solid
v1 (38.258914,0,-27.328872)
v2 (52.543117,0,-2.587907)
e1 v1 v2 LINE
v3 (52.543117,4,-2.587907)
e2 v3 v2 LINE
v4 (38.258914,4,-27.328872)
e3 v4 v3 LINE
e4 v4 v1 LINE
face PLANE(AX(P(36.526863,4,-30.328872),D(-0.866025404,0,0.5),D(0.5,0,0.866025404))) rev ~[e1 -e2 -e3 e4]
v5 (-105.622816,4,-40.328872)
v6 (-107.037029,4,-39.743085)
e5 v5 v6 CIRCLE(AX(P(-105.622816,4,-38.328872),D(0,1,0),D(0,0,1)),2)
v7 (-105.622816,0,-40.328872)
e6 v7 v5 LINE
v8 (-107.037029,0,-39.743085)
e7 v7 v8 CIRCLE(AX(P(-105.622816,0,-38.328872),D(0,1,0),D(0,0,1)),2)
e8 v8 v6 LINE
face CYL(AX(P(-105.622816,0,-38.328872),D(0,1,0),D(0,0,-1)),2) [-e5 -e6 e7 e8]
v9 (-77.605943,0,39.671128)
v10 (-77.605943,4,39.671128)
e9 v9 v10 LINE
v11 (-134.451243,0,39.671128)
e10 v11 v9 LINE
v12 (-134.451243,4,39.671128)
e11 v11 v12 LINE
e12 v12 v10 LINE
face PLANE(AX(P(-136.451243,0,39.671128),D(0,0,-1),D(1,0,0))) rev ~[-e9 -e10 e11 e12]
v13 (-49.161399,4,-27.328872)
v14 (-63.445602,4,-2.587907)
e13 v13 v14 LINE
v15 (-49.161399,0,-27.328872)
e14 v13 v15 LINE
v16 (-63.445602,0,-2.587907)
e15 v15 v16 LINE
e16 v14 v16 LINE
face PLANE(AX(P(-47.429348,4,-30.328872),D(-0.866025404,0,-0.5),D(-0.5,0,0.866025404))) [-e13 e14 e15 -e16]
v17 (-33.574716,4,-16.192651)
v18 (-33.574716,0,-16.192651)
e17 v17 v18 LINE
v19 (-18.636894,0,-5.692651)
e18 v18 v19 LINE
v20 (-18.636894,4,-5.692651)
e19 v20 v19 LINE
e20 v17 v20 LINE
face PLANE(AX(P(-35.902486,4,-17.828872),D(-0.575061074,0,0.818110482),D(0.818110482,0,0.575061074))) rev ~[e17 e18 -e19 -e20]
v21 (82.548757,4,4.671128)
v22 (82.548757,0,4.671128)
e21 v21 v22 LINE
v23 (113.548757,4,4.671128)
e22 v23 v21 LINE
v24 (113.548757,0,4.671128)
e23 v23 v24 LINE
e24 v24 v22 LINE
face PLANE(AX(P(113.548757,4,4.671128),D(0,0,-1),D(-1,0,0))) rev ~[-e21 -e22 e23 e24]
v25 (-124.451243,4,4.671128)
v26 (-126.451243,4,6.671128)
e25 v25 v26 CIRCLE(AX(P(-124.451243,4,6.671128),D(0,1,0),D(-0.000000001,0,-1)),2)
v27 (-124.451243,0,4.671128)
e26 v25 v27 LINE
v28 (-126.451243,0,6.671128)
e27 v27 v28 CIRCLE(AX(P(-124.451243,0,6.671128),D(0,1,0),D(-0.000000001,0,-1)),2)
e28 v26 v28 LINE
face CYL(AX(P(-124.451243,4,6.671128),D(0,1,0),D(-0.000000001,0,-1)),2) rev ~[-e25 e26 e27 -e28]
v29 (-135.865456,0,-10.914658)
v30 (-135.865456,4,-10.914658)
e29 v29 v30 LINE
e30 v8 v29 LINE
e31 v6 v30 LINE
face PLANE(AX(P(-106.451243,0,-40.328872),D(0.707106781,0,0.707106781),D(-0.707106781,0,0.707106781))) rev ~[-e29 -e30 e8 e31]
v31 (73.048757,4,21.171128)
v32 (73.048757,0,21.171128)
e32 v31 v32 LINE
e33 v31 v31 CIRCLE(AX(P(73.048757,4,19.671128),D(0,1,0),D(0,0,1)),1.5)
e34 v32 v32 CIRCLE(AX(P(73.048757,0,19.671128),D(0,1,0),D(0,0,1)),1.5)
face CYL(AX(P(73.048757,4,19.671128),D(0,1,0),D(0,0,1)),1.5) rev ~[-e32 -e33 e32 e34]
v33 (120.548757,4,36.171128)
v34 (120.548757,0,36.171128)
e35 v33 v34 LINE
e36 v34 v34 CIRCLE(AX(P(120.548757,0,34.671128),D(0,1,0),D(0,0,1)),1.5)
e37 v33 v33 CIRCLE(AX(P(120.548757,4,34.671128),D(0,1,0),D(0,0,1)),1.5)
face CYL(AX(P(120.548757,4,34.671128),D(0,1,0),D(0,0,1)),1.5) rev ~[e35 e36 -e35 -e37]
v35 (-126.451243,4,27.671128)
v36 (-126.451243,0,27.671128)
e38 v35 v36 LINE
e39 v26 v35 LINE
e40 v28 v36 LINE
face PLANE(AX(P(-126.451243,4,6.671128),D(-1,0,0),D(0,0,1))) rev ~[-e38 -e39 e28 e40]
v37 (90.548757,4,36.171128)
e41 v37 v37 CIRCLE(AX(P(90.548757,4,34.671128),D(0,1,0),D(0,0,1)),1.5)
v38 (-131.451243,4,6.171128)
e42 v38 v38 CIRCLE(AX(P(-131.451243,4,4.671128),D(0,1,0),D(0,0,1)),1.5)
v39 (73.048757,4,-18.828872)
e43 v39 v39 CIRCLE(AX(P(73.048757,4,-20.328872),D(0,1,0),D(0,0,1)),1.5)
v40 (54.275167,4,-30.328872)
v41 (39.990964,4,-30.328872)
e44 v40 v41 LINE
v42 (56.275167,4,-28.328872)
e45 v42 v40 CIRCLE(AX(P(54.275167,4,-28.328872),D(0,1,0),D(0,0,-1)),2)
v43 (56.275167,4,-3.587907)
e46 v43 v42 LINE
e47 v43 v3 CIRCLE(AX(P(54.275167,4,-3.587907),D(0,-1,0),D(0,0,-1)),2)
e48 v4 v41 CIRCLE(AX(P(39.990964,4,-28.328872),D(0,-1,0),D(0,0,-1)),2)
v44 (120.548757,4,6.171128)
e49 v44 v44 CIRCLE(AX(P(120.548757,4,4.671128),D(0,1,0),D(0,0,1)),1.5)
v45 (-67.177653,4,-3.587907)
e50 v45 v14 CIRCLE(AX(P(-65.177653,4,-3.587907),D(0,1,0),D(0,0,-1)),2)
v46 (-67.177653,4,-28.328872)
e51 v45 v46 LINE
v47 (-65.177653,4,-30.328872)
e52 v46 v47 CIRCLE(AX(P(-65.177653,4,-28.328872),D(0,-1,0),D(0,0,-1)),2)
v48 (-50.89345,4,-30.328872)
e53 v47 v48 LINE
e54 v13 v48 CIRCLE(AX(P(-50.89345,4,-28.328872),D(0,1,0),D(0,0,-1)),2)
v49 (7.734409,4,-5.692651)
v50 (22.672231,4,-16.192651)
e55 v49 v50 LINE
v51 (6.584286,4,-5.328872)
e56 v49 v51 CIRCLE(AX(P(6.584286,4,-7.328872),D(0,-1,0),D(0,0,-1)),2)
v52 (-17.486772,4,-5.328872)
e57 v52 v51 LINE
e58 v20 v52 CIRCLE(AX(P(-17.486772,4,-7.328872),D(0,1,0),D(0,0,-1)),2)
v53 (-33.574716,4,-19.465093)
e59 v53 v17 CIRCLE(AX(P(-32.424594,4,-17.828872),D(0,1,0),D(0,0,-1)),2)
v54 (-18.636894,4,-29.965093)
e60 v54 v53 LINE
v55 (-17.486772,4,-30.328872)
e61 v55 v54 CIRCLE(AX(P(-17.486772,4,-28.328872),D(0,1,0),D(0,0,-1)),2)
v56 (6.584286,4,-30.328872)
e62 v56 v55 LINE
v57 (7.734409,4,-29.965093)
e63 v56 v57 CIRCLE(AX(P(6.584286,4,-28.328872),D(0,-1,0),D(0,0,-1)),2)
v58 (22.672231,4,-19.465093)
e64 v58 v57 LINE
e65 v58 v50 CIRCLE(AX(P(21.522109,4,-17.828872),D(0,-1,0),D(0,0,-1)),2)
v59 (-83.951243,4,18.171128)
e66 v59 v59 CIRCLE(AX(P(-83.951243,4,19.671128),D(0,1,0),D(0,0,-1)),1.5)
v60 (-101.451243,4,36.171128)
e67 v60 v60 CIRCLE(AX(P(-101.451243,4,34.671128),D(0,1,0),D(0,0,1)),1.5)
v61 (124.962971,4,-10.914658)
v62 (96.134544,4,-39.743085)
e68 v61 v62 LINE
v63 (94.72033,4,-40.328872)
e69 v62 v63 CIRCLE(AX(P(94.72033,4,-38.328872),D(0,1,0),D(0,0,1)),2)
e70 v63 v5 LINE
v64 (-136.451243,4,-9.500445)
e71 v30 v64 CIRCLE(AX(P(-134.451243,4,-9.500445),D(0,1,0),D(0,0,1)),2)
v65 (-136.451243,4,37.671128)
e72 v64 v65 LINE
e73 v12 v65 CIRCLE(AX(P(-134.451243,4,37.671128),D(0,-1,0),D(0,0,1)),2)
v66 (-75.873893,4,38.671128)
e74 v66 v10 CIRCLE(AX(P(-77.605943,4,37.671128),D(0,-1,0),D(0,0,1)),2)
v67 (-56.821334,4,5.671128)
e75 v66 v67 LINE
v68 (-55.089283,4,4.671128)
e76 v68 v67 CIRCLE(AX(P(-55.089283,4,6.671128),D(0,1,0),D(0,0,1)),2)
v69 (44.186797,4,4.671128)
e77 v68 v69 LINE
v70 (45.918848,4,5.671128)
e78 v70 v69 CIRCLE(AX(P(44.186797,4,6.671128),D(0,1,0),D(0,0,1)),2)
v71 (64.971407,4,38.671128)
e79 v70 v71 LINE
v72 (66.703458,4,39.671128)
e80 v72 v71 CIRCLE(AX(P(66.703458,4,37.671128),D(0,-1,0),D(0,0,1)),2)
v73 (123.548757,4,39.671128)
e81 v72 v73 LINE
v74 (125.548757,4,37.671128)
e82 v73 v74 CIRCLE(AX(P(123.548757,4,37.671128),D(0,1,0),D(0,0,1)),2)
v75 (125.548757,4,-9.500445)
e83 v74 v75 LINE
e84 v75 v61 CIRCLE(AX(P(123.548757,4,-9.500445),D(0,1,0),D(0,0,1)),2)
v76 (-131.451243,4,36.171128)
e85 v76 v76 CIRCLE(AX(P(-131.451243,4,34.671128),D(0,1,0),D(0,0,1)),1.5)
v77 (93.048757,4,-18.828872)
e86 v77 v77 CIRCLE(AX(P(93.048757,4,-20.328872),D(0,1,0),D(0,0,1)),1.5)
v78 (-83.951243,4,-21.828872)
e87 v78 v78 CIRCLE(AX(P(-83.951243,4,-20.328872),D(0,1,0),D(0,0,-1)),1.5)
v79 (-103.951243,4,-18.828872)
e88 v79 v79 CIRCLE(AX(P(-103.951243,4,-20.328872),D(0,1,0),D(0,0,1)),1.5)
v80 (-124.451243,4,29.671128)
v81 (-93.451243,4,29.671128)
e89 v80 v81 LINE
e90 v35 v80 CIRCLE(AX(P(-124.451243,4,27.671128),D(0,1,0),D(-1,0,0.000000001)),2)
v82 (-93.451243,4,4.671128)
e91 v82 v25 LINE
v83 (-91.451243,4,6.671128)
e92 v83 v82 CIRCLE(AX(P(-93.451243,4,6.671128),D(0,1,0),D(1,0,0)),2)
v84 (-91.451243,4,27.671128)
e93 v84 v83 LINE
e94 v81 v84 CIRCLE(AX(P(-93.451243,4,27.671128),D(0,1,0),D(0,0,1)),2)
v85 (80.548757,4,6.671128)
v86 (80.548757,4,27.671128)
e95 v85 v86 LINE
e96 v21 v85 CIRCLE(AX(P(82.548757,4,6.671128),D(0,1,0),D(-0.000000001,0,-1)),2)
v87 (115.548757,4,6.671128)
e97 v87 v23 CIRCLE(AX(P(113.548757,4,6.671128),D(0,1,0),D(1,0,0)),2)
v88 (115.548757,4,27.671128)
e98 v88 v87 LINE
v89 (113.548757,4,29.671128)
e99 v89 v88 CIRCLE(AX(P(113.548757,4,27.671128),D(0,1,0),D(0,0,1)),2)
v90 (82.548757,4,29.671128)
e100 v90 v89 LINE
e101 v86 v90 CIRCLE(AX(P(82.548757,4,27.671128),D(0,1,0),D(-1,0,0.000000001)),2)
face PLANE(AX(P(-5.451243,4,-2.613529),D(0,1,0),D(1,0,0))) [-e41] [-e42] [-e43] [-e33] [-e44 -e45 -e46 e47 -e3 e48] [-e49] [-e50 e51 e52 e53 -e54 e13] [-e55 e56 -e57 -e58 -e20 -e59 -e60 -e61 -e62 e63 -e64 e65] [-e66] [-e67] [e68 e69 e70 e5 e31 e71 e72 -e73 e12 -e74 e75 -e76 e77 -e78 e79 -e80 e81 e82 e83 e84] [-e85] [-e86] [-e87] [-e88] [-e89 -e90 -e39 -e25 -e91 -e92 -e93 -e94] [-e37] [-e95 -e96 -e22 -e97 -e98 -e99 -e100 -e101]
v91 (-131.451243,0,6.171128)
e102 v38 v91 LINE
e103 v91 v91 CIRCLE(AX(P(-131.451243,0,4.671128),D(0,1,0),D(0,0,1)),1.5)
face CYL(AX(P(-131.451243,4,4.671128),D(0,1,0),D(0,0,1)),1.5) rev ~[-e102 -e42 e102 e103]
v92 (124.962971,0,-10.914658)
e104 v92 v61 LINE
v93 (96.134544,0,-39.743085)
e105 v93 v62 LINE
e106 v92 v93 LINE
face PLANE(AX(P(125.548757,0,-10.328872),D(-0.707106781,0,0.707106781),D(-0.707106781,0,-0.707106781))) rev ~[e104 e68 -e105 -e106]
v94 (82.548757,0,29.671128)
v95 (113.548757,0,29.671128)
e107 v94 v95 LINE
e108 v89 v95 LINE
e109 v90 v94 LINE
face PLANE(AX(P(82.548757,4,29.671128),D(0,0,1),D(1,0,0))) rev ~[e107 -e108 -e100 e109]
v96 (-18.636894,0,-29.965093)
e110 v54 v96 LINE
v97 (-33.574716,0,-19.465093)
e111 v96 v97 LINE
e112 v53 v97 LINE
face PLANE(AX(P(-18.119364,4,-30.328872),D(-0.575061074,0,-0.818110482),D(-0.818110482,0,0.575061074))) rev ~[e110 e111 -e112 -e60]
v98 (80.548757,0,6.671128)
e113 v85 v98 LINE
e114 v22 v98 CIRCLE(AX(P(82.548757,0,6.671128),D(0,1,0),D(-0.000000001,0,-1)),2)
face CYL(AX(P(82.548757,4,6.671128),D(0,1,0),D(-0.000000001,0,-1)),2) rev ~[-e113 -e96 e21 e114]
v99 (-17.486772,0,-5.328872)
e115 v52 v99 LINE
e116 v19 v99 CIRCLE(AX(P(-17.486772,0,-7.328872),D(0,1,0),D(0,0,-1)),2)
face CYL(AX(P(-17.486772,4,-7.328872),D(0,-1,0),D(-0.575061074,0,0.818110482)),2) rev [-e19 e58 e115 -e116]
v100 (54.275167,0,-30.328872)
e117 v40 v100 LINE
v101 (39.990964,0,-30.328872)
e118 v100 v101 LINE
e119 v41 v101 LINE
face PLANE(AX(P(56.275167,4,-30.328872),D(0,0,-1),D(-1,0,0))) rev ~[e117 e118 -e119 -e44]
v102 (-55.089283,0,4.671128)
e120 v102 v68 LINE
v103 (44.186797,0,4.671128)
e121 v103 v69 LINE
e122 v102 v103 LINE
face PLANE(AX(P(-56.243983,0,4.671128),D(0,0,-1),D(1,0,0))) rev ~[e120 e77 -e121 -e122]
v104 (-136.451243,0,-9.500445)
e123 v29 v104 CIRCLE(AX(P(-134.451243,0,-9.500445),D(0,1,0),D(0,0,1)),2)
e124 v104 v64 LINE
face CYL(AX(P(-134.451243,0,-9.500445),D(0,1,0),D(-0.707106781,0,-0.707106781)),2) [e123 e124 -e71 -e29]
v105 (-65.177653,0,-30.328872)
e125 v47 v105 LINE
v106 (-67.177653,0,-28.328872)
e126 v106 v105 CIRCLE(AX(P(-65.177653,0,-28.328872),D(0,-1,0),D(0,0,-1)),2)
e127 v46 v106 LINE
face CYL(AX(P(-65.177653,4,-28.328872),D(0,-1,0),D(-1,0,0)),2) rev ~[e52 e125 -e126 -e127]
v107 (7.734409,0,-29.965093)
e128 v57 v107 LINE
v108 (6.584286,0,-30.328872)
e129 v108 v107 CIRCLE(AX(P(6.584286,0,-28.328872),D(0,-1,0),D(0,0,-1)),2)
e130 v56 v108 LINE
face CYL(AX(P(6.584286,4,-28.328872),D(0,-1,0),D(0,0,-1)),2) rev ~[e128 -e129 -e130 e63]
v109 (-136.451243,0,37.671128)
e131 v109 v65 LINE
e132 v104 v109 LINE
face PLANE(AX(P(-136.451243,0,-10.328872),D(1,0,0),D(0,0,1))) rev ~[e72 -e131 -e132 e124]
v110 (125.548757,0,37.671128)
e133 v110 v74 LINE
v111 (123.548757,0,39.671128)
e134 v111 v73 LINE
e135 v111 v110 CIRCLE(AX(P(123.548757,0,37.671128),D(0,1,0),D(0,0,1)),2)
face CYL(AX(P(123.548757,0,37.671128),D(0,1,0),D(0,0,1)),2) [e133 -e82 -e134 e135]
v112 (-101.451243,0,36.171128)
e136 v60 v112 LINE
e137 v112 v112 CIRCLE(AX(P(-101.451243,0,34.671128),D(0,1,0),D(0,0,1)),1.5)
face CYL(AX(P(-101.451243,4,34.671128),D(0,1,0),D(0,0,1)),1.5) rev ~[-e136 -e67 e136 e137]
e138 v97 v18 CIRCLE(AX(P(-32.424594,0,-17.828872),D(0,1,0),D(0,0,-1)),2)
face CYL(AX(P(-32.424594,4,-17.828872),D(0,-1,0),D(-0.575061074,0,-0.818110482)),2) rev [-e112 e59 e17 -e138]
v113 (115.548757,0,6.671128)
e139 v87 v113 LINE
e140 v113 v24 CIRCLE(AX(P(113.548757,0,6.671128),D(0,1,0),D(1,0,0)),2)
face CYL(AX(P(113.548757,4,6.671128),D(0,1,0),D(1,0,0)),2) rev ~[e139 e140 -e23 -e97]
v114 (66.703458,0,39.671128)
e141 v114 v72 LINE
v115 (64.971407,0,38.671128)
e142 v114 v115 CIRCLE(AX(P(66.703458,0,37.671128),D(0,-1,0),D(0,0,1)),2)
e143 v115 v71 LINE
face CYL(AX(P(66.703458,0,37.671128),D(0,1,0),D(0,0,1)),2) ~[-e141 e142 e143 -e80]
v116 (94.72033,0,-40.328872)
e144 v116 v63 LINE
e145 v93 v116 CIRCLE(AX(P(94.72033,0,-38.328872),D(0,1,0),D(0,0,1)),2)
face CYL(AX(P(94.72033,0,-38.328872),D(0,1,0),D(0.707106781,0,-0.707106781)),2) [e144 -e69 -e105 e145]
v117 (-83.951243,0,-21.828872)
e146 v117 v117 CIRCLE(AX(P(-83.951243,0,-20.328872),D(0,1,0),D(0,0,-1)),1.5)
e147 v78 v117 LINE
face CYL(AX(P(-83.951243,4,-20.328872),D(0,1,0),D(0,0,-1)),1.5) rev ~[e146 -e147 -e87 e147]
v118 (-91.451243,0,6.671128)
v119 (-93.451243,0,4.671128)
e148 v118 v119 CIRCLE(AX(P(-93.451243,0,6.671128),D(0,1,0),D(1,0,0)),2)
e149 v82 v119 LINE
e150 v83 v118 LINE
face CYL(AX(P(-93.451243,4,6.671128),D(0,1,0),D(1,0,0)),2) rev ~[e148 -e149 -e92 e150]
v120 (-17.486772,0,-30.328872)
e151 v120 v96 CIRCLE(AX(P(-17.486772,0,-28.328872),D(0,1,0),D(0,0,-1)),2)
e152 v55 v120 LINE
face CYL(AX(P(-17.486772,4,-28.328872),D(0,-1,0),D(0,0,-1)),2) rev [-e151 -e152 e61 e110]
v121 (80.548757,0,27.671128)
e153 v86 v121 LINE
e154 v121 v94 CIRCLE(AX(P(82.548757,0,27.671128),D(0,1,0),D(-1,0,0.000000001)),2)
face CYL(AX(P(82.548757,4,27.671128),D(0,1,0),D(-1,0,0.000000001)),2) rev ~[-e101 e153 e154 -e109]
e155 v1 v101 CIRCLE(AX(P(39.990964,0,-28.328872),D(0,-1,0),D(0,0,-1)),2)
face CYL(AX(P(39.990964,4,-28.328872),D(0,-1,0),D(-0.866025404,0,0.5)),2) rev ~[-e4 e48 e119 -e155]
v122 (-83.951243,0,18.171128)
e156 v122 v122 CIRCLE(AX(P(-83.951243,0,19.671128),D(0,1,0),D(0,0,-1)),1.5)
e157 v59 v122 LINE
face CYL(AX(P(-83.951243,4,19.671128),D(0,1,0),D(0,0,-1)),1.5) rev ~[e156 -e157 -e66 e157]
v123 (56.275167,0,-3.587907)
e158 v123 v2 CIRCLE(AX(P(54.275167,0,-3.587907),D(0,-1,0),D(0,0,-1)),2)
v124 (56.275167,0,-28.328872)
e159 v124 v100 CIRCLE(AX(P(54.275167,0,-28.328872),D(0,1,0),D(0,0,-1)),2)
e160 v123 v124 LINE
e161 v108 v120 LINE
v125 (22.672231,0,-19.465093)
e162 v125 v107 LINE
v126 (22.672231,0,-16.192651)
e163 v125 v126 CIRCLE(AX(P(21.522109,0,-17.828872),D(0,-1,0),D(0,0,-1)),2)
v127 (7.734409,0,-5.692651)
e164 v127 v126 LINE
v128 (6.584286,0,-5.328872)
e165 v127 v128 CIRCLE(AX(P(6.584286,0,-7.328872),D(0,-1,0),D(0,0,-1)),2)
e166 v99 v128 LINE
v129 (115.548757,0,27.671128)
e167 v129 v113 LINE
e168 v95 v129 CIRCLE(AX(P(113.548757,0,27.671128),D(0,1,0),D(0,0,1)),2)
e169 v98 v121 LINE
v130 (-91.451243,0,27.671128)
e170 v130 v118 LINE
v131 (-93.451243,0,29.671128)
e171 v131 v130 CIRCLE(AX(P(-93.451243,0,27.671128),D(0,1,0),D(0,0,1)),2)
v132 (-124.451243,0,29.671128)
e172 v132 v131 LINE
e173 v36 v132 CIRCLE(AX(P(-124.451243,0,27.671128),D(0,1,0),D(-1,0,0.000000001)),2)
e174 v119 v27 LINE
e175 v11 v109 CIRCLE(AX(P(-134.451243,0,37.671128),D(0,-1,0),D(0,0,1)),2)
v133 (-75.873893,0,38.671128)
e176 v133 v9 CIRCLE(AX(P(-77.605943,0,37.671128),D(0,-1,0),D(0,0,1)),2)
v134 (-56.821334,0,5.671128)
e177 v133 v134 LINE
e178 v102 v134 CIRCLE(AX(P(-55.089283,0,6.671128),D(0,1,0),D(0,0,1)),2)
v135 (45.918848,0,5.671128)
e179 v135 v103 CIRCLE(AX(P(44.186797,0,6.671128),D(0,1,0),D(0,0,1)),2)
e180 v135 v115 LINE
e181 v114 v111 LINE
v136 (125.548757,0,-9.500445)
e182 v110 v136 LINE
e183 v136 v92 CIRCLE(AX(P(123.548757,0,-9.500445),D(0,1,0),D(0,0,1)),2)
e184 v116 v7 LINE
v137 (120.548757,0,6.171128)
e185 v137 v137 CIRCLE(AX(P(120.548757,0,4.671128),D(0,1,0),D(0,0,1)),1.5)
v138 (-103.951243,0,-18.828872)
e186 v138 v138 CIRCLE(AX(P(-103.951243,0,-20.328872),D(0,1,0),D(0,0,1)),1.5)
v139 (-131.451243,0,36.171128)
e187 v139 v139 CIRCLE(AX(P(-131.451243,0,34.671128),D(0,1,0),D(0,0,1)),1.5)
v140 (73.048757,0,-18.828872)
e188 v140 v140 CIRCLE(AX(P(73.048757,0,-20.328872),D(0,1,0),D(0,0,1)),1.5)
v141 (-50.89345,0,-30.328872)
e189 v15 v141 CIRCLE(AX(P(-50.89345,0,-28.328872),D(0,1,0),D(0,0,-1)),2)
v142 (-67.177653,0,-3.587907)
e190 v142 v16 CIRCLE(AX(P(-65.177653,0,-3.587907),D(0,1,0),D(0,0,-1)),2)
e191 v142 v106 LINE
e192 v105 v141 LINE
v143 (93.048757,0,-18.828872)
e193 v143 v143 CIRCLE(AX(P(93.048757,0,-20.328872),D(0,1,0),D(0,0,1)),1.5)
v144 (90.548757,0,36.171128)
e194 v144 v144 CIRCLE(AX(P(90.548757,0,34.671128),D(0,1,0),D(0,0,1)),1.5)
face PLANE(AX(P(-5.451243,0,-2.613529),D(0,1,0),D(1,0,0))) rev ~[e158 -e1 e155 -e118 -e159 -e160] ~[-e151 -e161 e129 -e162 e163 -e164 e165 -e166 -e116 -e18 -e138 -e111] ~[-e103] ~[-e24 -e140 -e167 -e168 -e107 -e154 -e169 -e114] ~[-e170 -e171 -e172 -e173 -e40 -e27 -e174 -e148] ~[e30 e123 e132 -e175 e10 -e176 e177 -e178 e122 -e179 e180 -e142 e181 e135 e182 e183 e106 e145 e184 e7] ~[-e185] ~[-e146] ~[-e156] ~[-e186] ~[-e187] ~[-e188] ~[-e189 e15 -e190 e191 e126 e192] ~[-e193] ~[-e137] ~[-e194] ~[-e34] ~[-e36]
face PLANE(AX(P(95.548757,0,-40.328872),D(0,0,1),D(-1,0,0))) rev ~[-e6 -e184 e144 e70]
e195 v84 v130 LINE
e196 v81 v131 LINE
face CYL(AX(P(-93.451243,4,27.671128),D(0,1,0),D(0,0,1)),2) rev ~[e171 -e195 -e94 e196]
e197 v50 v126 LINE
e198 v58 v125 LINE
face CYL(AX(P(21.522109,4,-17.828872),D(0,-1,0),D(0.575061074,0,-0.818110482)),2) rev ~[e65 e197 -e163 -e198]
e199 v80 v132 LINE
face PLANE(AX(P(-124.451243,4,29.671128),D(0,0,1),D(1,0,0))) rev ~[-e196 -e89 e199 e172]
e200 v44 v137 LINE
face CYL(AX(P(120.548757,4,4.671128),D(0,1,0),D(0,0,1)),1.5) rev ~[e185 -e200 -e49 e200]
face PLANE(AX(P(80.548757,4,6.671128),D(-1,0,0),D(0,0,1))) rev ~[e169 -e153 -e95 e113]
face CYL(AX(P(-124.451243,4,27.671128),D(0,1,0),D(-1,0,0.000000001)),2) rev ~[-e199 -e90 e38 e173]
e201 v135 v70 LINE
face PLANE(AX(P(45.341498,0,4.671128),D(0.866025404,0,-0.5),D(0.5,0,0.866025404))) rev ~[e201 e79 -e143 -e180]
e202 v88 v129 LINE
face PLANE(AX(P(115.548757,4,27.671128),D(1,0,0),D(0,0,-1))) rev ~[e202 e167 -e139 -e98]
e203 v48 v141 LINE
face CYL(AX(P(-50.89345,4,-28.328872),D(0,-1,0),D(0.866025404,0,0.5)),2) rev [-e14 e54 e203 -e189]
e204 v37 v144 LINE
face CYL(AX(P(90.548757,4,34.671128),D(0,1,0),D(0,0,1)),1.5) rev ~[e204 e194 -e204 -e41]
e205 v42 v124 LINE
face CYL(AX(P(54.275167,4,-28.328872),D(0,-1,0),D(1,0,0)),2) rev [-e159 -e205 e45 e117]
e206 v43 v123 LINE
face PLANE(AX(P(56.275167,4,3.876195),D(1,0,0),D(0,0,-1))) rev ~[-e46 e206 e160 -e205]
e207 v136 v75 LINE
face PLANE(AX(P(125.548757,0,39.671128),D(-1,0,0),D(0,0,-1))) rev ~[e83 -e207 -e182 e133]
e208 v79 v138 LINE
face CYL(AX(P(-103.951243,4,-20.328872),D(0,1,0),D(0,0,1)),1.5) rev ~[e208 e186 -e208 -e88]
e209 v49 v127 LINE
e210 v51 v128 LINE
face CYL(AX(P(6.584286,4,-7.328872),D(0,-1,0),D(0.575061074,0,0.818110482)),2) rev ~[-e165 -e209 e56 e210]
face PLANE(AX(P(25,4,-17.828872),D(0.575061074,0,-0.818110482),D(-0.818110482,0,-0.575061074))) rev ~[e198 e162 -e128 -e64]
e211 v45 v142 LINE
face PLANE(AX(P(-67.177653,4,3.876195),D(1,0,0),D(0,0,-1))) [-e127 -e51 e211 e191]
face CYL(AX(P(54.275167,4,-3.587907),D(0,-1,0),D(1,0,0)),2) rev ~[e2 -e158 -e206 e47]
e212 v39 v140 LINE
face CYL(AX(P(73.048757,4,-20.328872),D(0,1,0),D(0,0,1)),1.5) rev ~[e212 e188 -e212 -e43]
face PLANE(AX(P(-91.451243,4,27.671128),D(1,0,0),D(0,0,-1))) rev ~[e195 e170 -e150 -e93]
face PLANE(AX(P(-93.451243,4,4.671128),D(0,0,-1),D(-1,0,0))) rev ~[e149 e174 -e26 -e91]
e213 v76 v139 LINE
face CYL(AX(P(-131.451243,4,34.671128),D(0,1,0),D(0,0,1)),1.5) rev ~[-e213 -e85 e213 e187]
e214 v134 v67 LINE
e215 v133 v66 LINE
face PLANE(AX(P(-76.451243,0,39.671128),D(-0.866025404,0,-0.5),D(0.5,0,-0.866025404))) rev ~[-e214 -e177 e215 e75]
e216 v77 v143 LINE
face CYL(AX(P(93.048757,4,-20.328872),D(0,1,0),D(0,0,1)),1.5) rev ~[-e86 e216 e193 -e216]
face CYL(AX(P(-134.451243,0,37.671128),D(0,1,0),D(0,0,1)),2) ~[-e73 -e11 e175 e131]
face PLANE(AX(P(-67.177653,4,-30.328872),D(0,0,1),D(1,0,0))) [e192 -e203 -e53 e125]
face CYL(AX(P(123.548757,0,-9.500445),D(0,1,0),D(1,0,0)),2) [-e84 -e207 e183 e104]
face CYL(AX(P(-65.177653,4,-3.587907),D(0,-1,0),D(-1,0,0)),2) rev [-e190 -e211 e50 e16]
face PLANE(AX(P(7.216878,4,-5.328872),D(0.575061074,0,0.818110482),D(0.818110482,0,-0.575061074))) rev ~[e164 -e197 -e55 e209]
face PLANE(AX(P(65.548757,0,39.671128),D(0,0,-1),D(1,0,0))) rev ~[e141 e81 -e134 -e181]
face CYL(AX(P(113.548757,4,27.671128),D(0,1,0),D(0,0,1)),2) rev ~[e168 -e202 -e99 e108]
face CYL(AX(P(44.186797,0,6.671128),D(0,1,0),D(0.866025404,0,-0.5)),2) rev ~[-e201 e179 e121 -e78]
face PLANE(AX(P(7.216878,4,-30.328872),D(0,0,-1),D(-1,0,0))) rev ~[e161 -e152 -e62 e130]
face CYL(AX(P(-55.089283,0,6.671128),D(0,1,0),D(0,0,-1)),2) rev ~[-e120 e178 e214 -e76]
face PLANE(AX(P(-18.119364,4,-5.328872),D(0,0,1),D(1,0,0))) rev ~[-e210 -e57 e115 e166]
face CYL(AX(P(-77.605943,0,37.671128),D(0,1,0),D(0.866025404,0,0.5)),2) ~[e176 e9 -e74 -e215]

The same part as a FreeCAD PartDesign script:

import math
import FreeCAD as App
import Part
import Sketcher
from FreeCAD import Vector
Q = App.Units.Quantity


def edges_at(feature, points):
    """Names of the edges that pass closest to the given points."""
    edges = feature.Shape.Edges
    near = lambda p: min(range(len(edges)), key=lambda i: edges[i].distToShape(Part.Vertex(*p))[0])
    return sorted({f"Edge{near(p) + 1}" for p in points})

doc = App.newDocument("Part")
params = doc.addObject("Spreadsheet::Sheet", "Params")
for row, (alias, value) in enumerate([
    ("sketch1_width", "60 mm"),
    ("sketch1_width2", "202 mm"),
    ("sketch1_height", "50 mm"),
    ("pad1_length", "4 mm"),
    ("pocket1_length", "4 mm"),
    ("pocket2_length", "4 mm"),
    ("sketch4_radius", "2 mm"),
    ("sketch4_width", "31 mm"),
    ("sketch4_height", "21 mm"),
    ("pocket3_length", "4 mm"),
    ("fillet_radius", "2 mm"),
    ("fillet2_radius", "2 mm"),
    ("sketch5_diameter", "3 mm"),
    ("pocket4_length", "4 mm"),
    ("sketch6_diameter", "3 mm"),
    ("pocket5_length", "4 mm"),
    ("sketch7_diameter", "3 mm"),
    ("pocket6_length", "4 mm"),
    ("sketch8_diameter", "3 mm"),
    ("pocket7_length", "4 mm"),
    ("sketch9_diameter", "3 mm"),
    ("pocket8_length", "4 mm"),
    ("fillet3_radius", "2 mm"),
], start=1):
    params.set(f"A{row}", alias)
    params.set(f"B{row}", "=" + value)
    params.setAlias(f"B{row}", alias)

body = doc.addObject("PartDesign::Body", "Body")

# Sketch on XZ plane
sketch1 = body.newObject("Sketcher::SketchObject", "Sketch")
sketch1.AttachmentSupport = (doc.getObject("XZ_Plane"), [""])
sketch1.MapMode = "FlatFace"
sketch1.addGeometry(Part.LineSegment(Vector(66, 40, 0), Vector(126, 40, 0)), False)
sketch1.addGeometry(Part.LineSegment(Vector(126, 40, 0), Vector(126, -10, 0)), False)
sketch1.addGeometry(Part.LineSegment(Vector(126, -10, 0), Vector(96, -40, 0)), False)
sketch1.addGeometry(Part.LineSegment(Vector(96, -40, 0), Vector(-106, -40, 0)), False)
sketch1.addGeometry(Part.LineSegment(Vector(-106, -40, 0), Vector(-136, -10, 0)), False)
sketch1.addGeometry(Part.LineSegment(Vector(-136, -10, 0), Vector(-136, 40, 0)), False)
sketch1.addGeometry(Part.LineSegment(Vector(-136, 40, 0), Vector(-76, 40, 0)), False)
sketch1.addGeometry(Part.LineSegment(Vector(-76, 40, 0), Vector(-56, 5, 0)), False)
sketch1.addGeometry(Part.LineSegment(Vector(-56, 5, 0), Vector(45, 5, 0)), False)
sketch1.addGeometry(Part.LineSegment(Vector(45, 5, 0), Vector(66, 40, 0)), False)
sketch1.addConstraint(Sketcher.Constraint("Coincident", 0, 2, 1, 1))
sketch1.addConstraint(Sketcher.Constraint("Coincident", 1, 2, 2, 1))
sketch1.addConstraint(Sketcher.Constraint("Coincident", 2, 2, 3, 1))
sketch1.addConstraint(Sketcher.Constraint("Coincident", 3, 2, 4, 1))
sketch1.addConstraint(Sketcher.Constraint("Coincident", 4, 2, 5, 1))
sketch1.addConstraint(Sketcher.Constraint("Coincident", 5, 2, 6, 1))
sketch1.addConstraint(Sketcher.Constraint("Coincident", 6, 2, 7, 1))
sketch1.addConstraint(Sketcher.Constraint("Coincident", 7, 2, 8, 1))
sketch1.addConstraint(Sketcher.Constraint("Coincident", 8, 2, 9, 1))
sketch1.addConstraint(Sketcher.Constraint("Coincident", 9, 2, 0, 1))
sketch1.addConstraint(Sketcher.Constraint("Horizontal", 0))
sketch1.addConstraint(Sketcher.Constraint("Vertical", 1))
sketch1.addConstraint(Sketcher.Constraint("Horizontal", 3))
sketch1.addConstraint(Sketcher.Constraint("Vertical", 5))
sketch1.addConstraint(Sketcher.Constraint("Horizontal", 6))
sketch1.addConstraint(Sketcher.Constraint("Horizontal", 8))
sketch1.addConstraint(Sketcher.Constraint("Perpendicular", 2, 4))
sketch1.addConstraint(Sketcher.Constraint("Horizontal", 1, 2, 4, 2))
sketch1.addConstraint(Sketcher.Constraint("Horizontal", 0, 2, 5, 2))
sketch1.addConstraint(Sketcher.Constraint("Equal", 0, 6))
sketch1.addConstraint(Sketcher.Constraint("Equal", 2, 4))
sketch1.addConstraint(Sketcher.Constraint("Equal", 7, 9))
sketch1.addConstraint(Sketcher.Constraint("DistanceX", 0, 1, 0, 2, Q("60 mm")))
sketch1.addConstraint(Sketcher.Constraint("DistanceX", 3, 2, 3, 1, Q("202 mm")))
sketch1.addConstraint(Sketcher.Constraint("DistanceY", 1, 2, 1, 1, Q("50 mm")))
sketch1.addConstraint(Sketcher.Constraint("Angle", 7, Q("-60 deg")))
sketch1.addConstraint(Sketcher.Constraint("DistanceX", 2, 2, 1, 2, Q("30 mm")))
sketch1.addConstraint(Sketcher.Constraint("DistanceY", 7, 2, 6, 2, Q("35 mm")))
sketch1.addConstraint(Sketcher.Constraint("DistanceY", -1, 1, 0, 2, Q("39.671128 mm")))
sketch1.addConstraint(Sketcher.Constraint("DistanceX", -1, 1, 0, 2, Q("125.548757 mm")))
sketch1.setExpression("Constraints[22]", "Params.sketch1_width")
sketch1.setExpression("Constraints[23]", "Params.sketch1_width2")
sketch1.setExpression("Constraints[24]", "Params.sketch1_height")
pad1 = body.newObject("PartDesign::Pad", "Pad")
pad1.Profile = sketch1
pad1.setExpression("Length", "Params.pad1_length")
pad1.Reversed = True

# Sketch on XZ plane
sketch2 = body.newObject("Sketcher::SketchObject", "Sketch001")
sketch2.AttachmentSupport = (doc.getObject("XZ_Plane"), [""])
sketch2.MapMode = "FlatFace"
sketch2.AttachmentOffset = App.Placement(Vector(0, 0, -4), App.Rotation())
sketch2.addGeometry(Part.LineSegment(Vector(7, -30, 0), Vector(-18, -30, 0)), False)
sketch2.addGeometry(Part.LineSegment(Vector(-18, -30, 0), Vector(-36, -18, 0)), False)
sketch2.addGeometry(Part.LineSegment(Vector(-36, -18, 0), Vector(-18, -5, 0)), False)
sketch2.addGeometry(Part.LineSegment(Vector(-18, -5, 0), Vector(7, -5, 0)), False)
sketch2.addGeometry(Part.LineSegment(Vector(7, -5, 0), Vector(25, -18, 0)), False)
sketch2.addGeometry(Part.LineSegment(Vector(25, -18, 0), Vector(7, -30, 0)), False)
sketch2.addConstraint(Sketcher.Constraint("Coincident", 0, 2, 1, 1))
sketch2.addConstraint(Sketcher.Constraint("Coincident", 1, 2, 2, 1))
sketch2.addConstraint(Sketcher.Constraint("Coincident", 2, 2, 3, 1))
sketch2.addConstraint(Sketcher.Constraint("Coincident", 3, 2, 4, 1))
sketch2.addConstraint(Sketcher.Constraint("Coincident", 4, 2, 5, 1))
sketch2.addConstraint(Sketcher.Constraint("Coincident", 5, 2, 0, 1))
sketch2.addConstraint(Sketcher.Constraint("Horizontal", 0))
sketch2.addConstraint(Sketcher.Constraint("Horizontal", 3))
sketch2.addConstraint(Sketcher.Constraint("Parallel", 1, 4))
sketch2.addConstraint(Sketcher.Constraint("Parallel", 2, 5))
sketch2.addConstraint(Sketcher.Constraint("Horizontal", 1, 2, 4, 2))
sketch2.addConstraint(Sketcher.Constraint("Vertical", 0, 2, 2, 2))
sketch2.addConstraint(Sketcher.Constraint("Vertical", 3, 2, 5, 2))
sketch2.addConstraint(Sketcher.Constraint("DistanceX", -1, 1, 4, 2, Q("25 mm")))
sketch2.addConstraint(Sketcher.Constraint("DistanceY", 0, 2, 2, 2, Q("25 mm")))
sketch2.addConstraint(Sketcher.Constraint("Distance", 1, Q("21.736822 mm")))
sketch2.addConstraint(Sketcher.Constraint("DistanceX", 0, 2, 0, 1, Q("25.336242 mm")))
sketch2.addConstraint(Sketcher.Constraint("DistanceY", 0, 2, -1, 1, Q("30.328872 mm")))
pocket1 = body.newObject("PartDesign::Pocket", "Pocket")
pocket1.Profile = sketch2
pocket1.setExpression("Length", "Params.pocket1_length")
pocket1.Reversed = True

# Sketch on XZ plane
sketch3 = body.newObject("Sketcher::SketchObject", "Sketch002")
sketch3.AttachmentSupport = (doc.getObject("XZ_Plane"), [""])
sketch3.MapMode = "FlatFace"
sketch3.AttachmentOffset = App.Placement(Vector(0, 0, -4), App.Rotation())
sketch3.addGeometry(Part.LineSegment(Vector(-47, -30, 0), Vector(-67, -30, 0)), False)
sketch3.addGeometry(Part.LineSegment(Vector(-67, -30, 0), Vector(-67, 4, 0)), False)
sketch3.addGeometry(Part.LineSegment(Vector(-67, 4, 0), Vector(-47, -30, 0)), False)
sketch3.addGeometry(Part.LineSegment(Vector(56, 4, 0), Vector(56, -30, 0)), False)
sketch3.addGeometry(Part.LineSegment(Vector(56, -30, 0), Vector(37, -30, 0)), False)
sketch3.addGeometry(Part.LineSegment(Vector(37, -30, 0), Vector(56, 4, 0)), False)
sketch3.addConstraint(Sketcher.Constraint("Coincident", 0, 2, 1, 1))
sketch3.addConstraint(Sketcher.Constraint("Coincident", 1, 2, 2, 1))
sketch3.addConstraint(Sketcher.Constraint("Coincident", 2, 2, 0, 1))
sketch3.addConstraint(Sketcher.Constraint("Coincident", 3, 2, 4, 1))
sketch3.addConstraint(Sketcher.Constraint("Coincident", 4, 2, 5, 1))
sketch3.addConstraint(Sketcher.Constraint("Coincident", 5, 2, 3, 1))
sketch3.addConstraint(Sketcher.Constraint("Horizontal", 0))
sketch3.addConstraint(Sketcher.Constraint("Vertical", 1))
sketch3.addConstraint(Sketcher.Constraint("Vertical", 3))
sketch3.addConstraint(Sketcher.Constraint("Horizontal", 4))
sketch3.addConstraint(Sketcher.Constraint("Horizontal", 2, 2, 3, 2))
sketch3.addConstraint(Sketcher.Constraint("Horizontal", 1, 2, 5, 2))
sketch3.addConstraint(Sketcher.Constraint("Equal", 0, 4))
sketch3.addConstraint(Sketcher.Constraint("Angle", 2, Q("-60 deg")))
sketch3.addConstraint(Sketcher.Constraint("Distance", 2, Q("39.496609 mm")))
sketch3.addConstraint(Sketcher.Constraint("DistanceY", 0, 2, -1, 1, Q("30.328872 mm")))
sketch3.addConstraint(Sketcher.Constraint("DistanceX", 2, 2, -1, 1, Q("47.429348 mm")))
sketch3.addConstraint(Sketcher.Constraint("DistanceX", 0, 2, 3, 2, Q("123.452821 mm")))
pocket2 = body.newObject("PartDesign::Pocket", "Pocket001")
pocket2.Profile = sketch3
pocket2.setExpression("Length", "Params.pocket2_length")
pocket2.Reversed = True

# Sketch on XZ plane
sketch4 = body.newObject("Sketcher::SketchObject", "Sketch003")
sketch4.AttachmentSupport = (doc.getObject("XZ_Plane"), [""])
sketch4.MapMode = "FlatFace"
sketch4.AttachmentOffset = App.Placement(Vector(0, 0, -4), App.Rotation())
sketch4.addGeometry(Part.LineSegment(Vector(-124.5, 29.7, 0), Vector(-93.5, 29.7, 0)), False)
sketch4.addGeometry(Part.ArcOfCircle(Part.Circle(Vector(-93.5, 27.7, 0), Vector(0, 0, 1), 2), math.radians(0), math.radians(90)), False)
sketch4.addGeometry(Part.LineSegment(Vector(-91.5, 27.7, 0), Vector(-91.5, 6.7, 0)), False)
sketch4.addGeometry(Part.ArcOfCircle(Part.Circle(Vector(-93.5, 6.7, 0), Vector(0, 0, 1), 2), math.radians(-90), math.radians(0)), False)
sketch4.addGeometry(Part.LineSegment(Vector(-93.5, 4.7, 0), Vector(-124.5, 4.7, 0)), False)
sketch4.addGeometry(Part.ArcOfCircle(Part.Circle(Vector(-124.5, 6.7, 0), Vector(0, 0, 1), 2), math.radians(-180), math.radians(-90)), False)
sketch4.addGeometry(Part.LineSegment(Vector(-126.5, 6.7, 0), Vector(-126.5, 27.7, 0)), False)
sketch4.addGeometry(Part.ArcOfCircle(Part.Circle(Vector(-124.5, 27.7, 0), Vector(0, 0, 1), 2), math.radians(90), math.radians(180)), False)
sketch4.addGeometry(Part.LineSegment(Vector(115.5, 27.7, 0), Vector(115.5, 6.7, 0)), False)
sketch4.addGeometry(Part.ArcOfCircle(Part.Circle(Vector(113.5, 6.7, 0), Vector(0, 0, 1), 2), math.radians(-90), math.radians(0)), False)
sketch4.addGeometry(Part.LineSegment(Vector(113.5, 4.7, 0), Vector(82.5, 4.7, 0)), False)
sketch4.addGeometry(Part.ArcOfCircle(Part.Circle(Vector(82.5, 6.7, 0), Vector(0, 0, 1), 2), math.radians(-180), math.radians(-90)), False)
sketch4.addGeometry(Part.LineSegment(Vector(80.5, 6.7, 0), Vector(80.5, 27.7, 0)), False)
sketch4.addGeometry(Part.ArcOfCircle(Part.Circle(Vector(82.5, 27.7, 0), Vector(0, 0, 1), 2), math.radians(90), math.radians(180)), False)
sketch4.addGeometry(Part.LineSegment(Vector(82.5, 29.7, 0), Vector(113.5, 29.7, 0)), False)
sketch4.addGeometry(Part.ArcOfCircle(Part.Circle(Vector(113.5, 27.7, 0), Vector(0, 0, 1), 2), math.radians(0), math.radians(90)), False)
sketch4.addConstraint(Sketcher.Constraint("Tangent", 0, 2, 1, 2))
sketch4.addConstraint(Sketcher.Constraint("Tangent", 1, 1, 2, 1))
sketch4.addConstraint(Sketcher.Constraint("Tangent", 2, 2, 3, 2))
sketch4.addConstraint(Sketcher.Constraint("Tangent", 3, 1, 4, 1))
sketch4.addConstraint(Sketcher.Constraint("Tangent", 4, 2, 5, 2))
sketch4.addConstraint(Sketcher.Constraint("Tangent", 5, 1, 6, 1))
sketch4.addConstraint(Sketcher.Constraint("Tangent", 6, 2, 7, 2))
sketch4.addConstraint(Sketcher.Constraint("Tangent", 7, 1, 0, 1))
sketch4.addConstraint(Sketcher.Constraint("Tangent", 8, 2, 9, 2))
sketch4.addConstraint(Sketcher.Constraint("Tangent", 9, 1, 10, 1))
sketch4.addConstraint(Sketcher.Constraint("Tangent", 10, 2, 11, 2))
sketch4.addConstraint(Sketcher.Constraint("Tangent", 11, 1, 12, 1))
sketch4.addConstraint(Sketcher.Constraint("Tangent", 12, 2, 13, 2))
sketch4.addConstraint(Sketcher.Constraint("Tangent", 13, 1, 14, 1))
sketch4.addConstraint(Sketcher.Constraint("Tangent", 14, 2, 15, 2))
sketch4.addConstraint(Sketcher.Constraint("Tangent", 15, 1, 8, 1))
sketch4.addConstraint(Sketcher.Constraint("Horizontal", 0))
sketch4.addConstraint(Sketcher.Constraint("Vertical", 2))
sketch4.addConstraint(Sketcher.Constraint("Horizontal", 4))
sketch4.addConstraint(Sketcher.Constraint("Vertical", 6))
sketch4.addConstraint(Sketcher.Constraint("Vertical", 8))
sketch4.addConstraint(Sketcher.Constraint("Horizontal", 10))
sketch4.addConstraint(Sketcher.Constraint("Vertical", 12))
sketch4.addConstraint(Sketcher.Constraint("Horizontal", 14))
sketch4.addConstraint(Sketcher.Constraint("Equal", 1, 3))
sketch4.addConstraint(Sketcher.Constraint("Equal", 3, 5))
sketch4.addConstraint(Sketcher.Constraint("Equal", 5, 7))
sketch4.addConstraint(Sketcher.Constraint("Equal", 7, 9))
sketch4.addConstraint(Sketcher.Constraint("Equal", 9, 11))
sketch4.addConstraint(Sketcher.Constraint("Equal", 11, 13))
sketch4.addConstraint(Sketcher.Constraint("Equal", 13, 15))
sketch4.addConstraint(Sketcher.Constraint("Horizontal", 5, 3, 9, 3))
sketch4.addConstraint(Sketcher.Constraint("Horizontal", 7, 3, 13, 3))
sketch4.addConstraint(Sketcher.Constraint("Equal", 4, 10))
sketch4.addConstraint(Sketcher.Constraint("Radius", 1, Q("2 mm")))
sketch4.addConstraint(Sketcher.Constraint("DistanceX", 0, 1, 0, 2, Q("31 mm")))
sketch4.addConstraint(Sketcher.Constraint("DistanceY", 2, 2, 2, 1, Q("21 mm")))
sketch4.addConstraint(Sketcher.Constraint("DistanceX", 3, 3, 9, 3, Q("207 mm")))
sketch4.addConstraint(Sketcher.Constraint("DistanceY", -1, 1, 1, 3, Q("27.671128 mm")))
sketch4.addConstraint(Sketcher.Constraint("DistanceX", 1, 3, -1, 1, Q("93.451243 mm")))
sketch4.setExpression("Constraints[34]", "Params.sketch4_radius")
sketch4.setExpression("Constraints[35]", "Params.sketch4_width")
sketch4.setExpression("Constraints[36]", "Params.sketch4_height")
pocket3 = body.newObject("PartDesign::Pocket", "Pocket002")
pocket3.Profile = sketch4
pocket3.setExpression("Length", "Params.pocket3_length")
pocket3.Reversed = True
doc.recompute()

fillet = body.newObject("PartDesign::Fillet", "Fillet")
fillet.Base = (pocket3, edges_at(pocket3, [
    (-67.178, 2, 3.876),
    (-67.178, 2, -30.329),
    (-47.429, 2, -30.329),
    (56.275, 2, 3.876),
    (36.527, 2, -30.329),
    (56.275, 2, -30.329),
]))
fillet.setExpression("Radius", "Params.fillet_radius")
doc.recompute()

fillet2 = body.newObject("PartDesign::Fillet", "Fillet001")
fillet2.Base = (fillet, edges_at(fillet, [
    (-136.451, 2, -10.329),
    (-106.451, 2, -40.329),
    (95.549, 2, -40.329),
    (125.549, 2, -10.329),
    (125.549, 2, 39.671),
    (65.549, 2, 39.671),
    (45.341, 2, 4.671),
    (-56.244, 2, 4.671),
    (-76.451, 2, 39.671),
    (-136.451, 2, 39.671),
]))
fillet2.setExpression("Radius", "Params.fillet2_radius")

# Sketch on XZ plane
sketch5 = body.newObject("Sketcher::SketchObject", "Sketch004")
sketch5.AttachmentSupport = (doc.getObject("XZ_Plane"), [""])
sketch5.MapMode = "FlatFace"
sketch5.AttachmentOffset = App.Placement(Vector(0, 0, -4), App.Rotation())
sketch5.addGeometry(Part.Circle(Vector(73, 19.7, 0), Vector(0, 0, 1), 1.5), False)
sketch5.addGeometry(Part.Circle(Vector(73, -20.3, 0), Vector(0, 0, 1), 1.5), False)
sketch5.addGeometry(Part.Circle(Vector(-84, 19.7, 0), Vector(0, 0, 1), 1.5), False)
sketch5.addGeometry(Part.Circle(Vector(-84, -20.3, 0), Vector(0, 0, 1), 1.5), False)
sketch5.addConstraint(Sketcher.Constraint("Equal", 0, 1))
sketch5.addConstraint(Sketcher.Constraint("Equal", 1, 2))
sketch5.addConstraint(Sketcher.Constraint("Equal", 2, 3))
sketch5.addConstraint(Sketcher.Constraint("Horizontal", 0, 3, 2, 3))
sketch5.addConstraint(Sketcher.Constraint("Horizontal", 1, 3, 3, 3))
sketch5.addConstraint(Sketcher.Constraint("Vertical", 0, 3, 1, 3))
sketch5.addConstraint(Sketcher.Constraint("Vertical", 2, 3, 3, 3))
sketch5.addConstraint(Sketcher.Constraint("Diameter", 0, Q("3 mm")))
sketch5.addConstraint(Sketcher.Constraint("DistanceY", 1, 3, 0, 3, Q("40 mm")))
sketch5.addConstraint(Sketcher.Constraint("DistanceX", 2, 3, 0, 3, Q("157 mm")))
sketch5.addConstraint(Sketcher.Constraint("DistanceY", -1, 1, 0, 3, Q("19.671128 mm")))
sketch5.addConstraint(Sketcher.Constraint("DistanceX", -1, 1, 0, 3, Q("73.048757 mm")))
sketch5.setExpression("Constraints[7]", "Params.sketch5_diameter")
pocket4 = body.newObject("PartDesign::Pocket", "Pocket003")
pocket4.Profile = sketch5
pocket4.setExpression("Length", "Params.pocket4_length")
pocket4.Reversed = True

# Sketch on XZ plane
sketch6 = body.newObject("Sketcher::SketchObject", "Sketch005")
sketch6.AttachmentSupport = (doc.getObject("XZ_Plane"), [""])
sketch6.MapMode = "FlatFace"
sketch6.AttachmentOffset = App.Placement(Vector(0, 0, -4), App.Rotation())
sketch6.addGeometry(Part.Circle(Vector(120.5, 34.7, 0), Vector(0, 0, 1), 1.5), False)
sketch6.addGeometry(Part.Circle(Vector(93, -20.3, 0), Vector(0, 0, 1), 1.5), False)
sketch6.addGeometry(Part.Circle(Vector(90.5, 34.7, 0), Vector(0, 0, 1), 1.5), False)
sketch6.addConstraint(Sketcher.Constraint("Equal", 0, 1))
sketch6.addConstraint(Sketcher.Constraint("Equal", 1, 2))
sketch6.addConstraint(Sketcher.Constraint("Horizontal", 0, 3, 2, 3))
sketch6.addConstraint(Sketcher.Constraint("Diameter", 0, Q("3 mm")))
sketch6.addConstraint(Sketcher.Constraint("DistanceY", 1, 3, 0, 3, Q("55 mm")))
sketch6.addConstraint(Sketcher.Constraint("DistanceX", 2, 3, 0, 3, Q("30 mm")))
sketch6.addConstraint(Sketcher.Constraint("DistanceX", 1, 3, 0, 3, Q("27.5 mm")))
sketch6.addConstraint(Sketcher.Constraint("DistanceY", -1, 1, 0, 3, Q("34.671128 mm")))
sketch6.addConstraint(Sketcher.Constraint("DistanceX", -1, 1, 0, 3, Q("120.548757 mm")))
sketch6.setExpression("Constraints[3]", "Params.sketch6_diameter")
pocket5 = body.newObject("PartDesign::Pocket", "Pocket004")
pocket5.Profile = sketch6
pocket5.setExpression("Length", "Params.pocket5_length")
pocket5.Reversed = True

# Sketch on XZ plane
sketch7 = body.newObject("Sketcher::SketchObject", "Sketch006")
sketch7.AttachmentSupport = (doc.getObject("XZ_Plane"), [""])
sketch7.MapMode = "FlatFace"
sketch7.AttachmentOffset = App.Placement(Vector(0, 0, -4), App.Rotation())
sketch7.addGeometry(Part.Circle(Vector(120.5, 4.7, 0), Vector(0, 0, 1), 1.5), False)
sketch7.addConstraint(Sketcher.Constraint("Diameter", 0, Q("3 mm")))
sketch7.addConstraint(Sketcher.Constraint("DistanceY", -1, 1, 0, 3, Q("4.671128 mm")))
sketch7.addConstraint(Sketcher.Constraint("DistanceX", -1, 1, 0, 3, Q("120.548757 mm")))
sketch7.setExpression("Constraints[0]", "Params.sketch7_diameter")
pocket6 = body.newObject("PartDesign::Pocket", "Pocket005")
pocket6.Profile = sketch7
pocket6.setExpression("Length", "Params.pocket6_length")
pocket6.Reversed = True

# Sketch on XZ plane
sketch8 = body.newObject("Sketcher::SketchObject", "Sketch007")
sketch8.AttachmentSupport = (doc.getObject("XZ_Plane"), [""])
sketch8.MapMode = "FlatFace"
sketch8.AttachmentOffset = App.Placement(Vector(0, 0, -4), App.Rotation())
sketch8.addGeometry(Part.Circle(Vector(-131.5, 34.7, 0), Vector(0, 0, 1), 1.5), False)
sketch8.addGeometry(Part.Circle(Vector(-101.5, 34.7, 0), Vector(0, 0, 1), 1.5), False)
sketch8.addGeometry(Part.Circle(Vector(-131.5, 4.7, 0), Vector(0, 0, 1), 1.5), False)
sketch8.addConstraint(Sketcher.Constraint("Equal", 0, 1))
sketch8.addConstraint(Sketcher.Constraint("Equal", 1, 2))
sketch8.addConstraint(Sketcher.Constraint("Horizontal", 0, 3, 1, 3))
sketch8.addConstraint(Sketcher.Constraint("Vertical", 0, 3, 2, 3))
sketch8.addConstraint(Sketcher.Constraint("Diameter", 0, Q("3 mm")))
sketch8.addConstraint(Sketcher.Constraint("DistanceX", 0, 3, 1, 3, Q("30 mm")))
sketch8.addConstraint(Sketcher.Constraint("DistanceY", 2, 3, 0, 3, Q("30 mm")))
sketch8.addConstraint(Sketcher.Constraint("DistanceY", -1, 1, 0, 3, Q("34.671128 mm")))
sketch8.addConstraint(Sketcher.Constraint("DistanceX", 0, 3, -1, 1, Q("131.451243 mm")))
sketch8.setExpression("Constraints[4]", "Params.sketch8_diameter")
pocket7 = body.newObject("PartDesign::Pocket", "Pocket006")
pocket7.Profile = sketch8
pocket7.setExpression("Length", "Params.pocket7_length")
pocket7.Reversed = True

# Sketch on XZ plane
sketch9 = body.newObject("Sketcher::SketchObject", "Sketch008")
sketch9.AttachmentSupport = (doc.getObject("XZ_Plane"), [""])
sketch9.MapMode = "FlatFace"
sketch9.AttachmentOffset = App.Placement(Vector(0, 0, -4), App.Rotation())
sketch9.addGeometry(Part.Circle(Vector(-104, -20.3, 0), Vector(0, 0, 1), 1.5), False)
sketch9.addConstraint(Sketcher.Constraint("Diameter", 0, Q("3 mm")))
sketch9.addConstraint(Sketcher.Constraint("DistanceY", 0, 3, -1, 1, Q("20.328872 mm")))
sketch9.addConstraint(Sketcher.Constraint("DistanceX", 0, 3, -1, 1, Q("103.951243 mm")))
sketch9.setExpression("Constraints[0]", "Params.sketch9_diameter")
pocket8 = body.newObject("PartDesign::Pocket", "Pocket007")
pocket8.Profile = sketch9
pocket8.setExpression("Length", "Params.pocket8_length")
pocket8.Reversed = True
doc.recompute()

fillet3 = body.newObject("PartDesign::Fillet", "Fillet002")
fillet3.Base = (pocket8, edges_at(pocket8, [
    (7.217, 2, -30.329),
    (25, 2, -17.829),
    (7.217, 2, -5.329),
    (-18.119, 2, -5.329),
    (-35.902, 2, -17.829),
    (-18.119, 2, -30.329),
]))
fillet3.setExpression("Radius", "Params.fillet3_radius")

doc.recompute()
